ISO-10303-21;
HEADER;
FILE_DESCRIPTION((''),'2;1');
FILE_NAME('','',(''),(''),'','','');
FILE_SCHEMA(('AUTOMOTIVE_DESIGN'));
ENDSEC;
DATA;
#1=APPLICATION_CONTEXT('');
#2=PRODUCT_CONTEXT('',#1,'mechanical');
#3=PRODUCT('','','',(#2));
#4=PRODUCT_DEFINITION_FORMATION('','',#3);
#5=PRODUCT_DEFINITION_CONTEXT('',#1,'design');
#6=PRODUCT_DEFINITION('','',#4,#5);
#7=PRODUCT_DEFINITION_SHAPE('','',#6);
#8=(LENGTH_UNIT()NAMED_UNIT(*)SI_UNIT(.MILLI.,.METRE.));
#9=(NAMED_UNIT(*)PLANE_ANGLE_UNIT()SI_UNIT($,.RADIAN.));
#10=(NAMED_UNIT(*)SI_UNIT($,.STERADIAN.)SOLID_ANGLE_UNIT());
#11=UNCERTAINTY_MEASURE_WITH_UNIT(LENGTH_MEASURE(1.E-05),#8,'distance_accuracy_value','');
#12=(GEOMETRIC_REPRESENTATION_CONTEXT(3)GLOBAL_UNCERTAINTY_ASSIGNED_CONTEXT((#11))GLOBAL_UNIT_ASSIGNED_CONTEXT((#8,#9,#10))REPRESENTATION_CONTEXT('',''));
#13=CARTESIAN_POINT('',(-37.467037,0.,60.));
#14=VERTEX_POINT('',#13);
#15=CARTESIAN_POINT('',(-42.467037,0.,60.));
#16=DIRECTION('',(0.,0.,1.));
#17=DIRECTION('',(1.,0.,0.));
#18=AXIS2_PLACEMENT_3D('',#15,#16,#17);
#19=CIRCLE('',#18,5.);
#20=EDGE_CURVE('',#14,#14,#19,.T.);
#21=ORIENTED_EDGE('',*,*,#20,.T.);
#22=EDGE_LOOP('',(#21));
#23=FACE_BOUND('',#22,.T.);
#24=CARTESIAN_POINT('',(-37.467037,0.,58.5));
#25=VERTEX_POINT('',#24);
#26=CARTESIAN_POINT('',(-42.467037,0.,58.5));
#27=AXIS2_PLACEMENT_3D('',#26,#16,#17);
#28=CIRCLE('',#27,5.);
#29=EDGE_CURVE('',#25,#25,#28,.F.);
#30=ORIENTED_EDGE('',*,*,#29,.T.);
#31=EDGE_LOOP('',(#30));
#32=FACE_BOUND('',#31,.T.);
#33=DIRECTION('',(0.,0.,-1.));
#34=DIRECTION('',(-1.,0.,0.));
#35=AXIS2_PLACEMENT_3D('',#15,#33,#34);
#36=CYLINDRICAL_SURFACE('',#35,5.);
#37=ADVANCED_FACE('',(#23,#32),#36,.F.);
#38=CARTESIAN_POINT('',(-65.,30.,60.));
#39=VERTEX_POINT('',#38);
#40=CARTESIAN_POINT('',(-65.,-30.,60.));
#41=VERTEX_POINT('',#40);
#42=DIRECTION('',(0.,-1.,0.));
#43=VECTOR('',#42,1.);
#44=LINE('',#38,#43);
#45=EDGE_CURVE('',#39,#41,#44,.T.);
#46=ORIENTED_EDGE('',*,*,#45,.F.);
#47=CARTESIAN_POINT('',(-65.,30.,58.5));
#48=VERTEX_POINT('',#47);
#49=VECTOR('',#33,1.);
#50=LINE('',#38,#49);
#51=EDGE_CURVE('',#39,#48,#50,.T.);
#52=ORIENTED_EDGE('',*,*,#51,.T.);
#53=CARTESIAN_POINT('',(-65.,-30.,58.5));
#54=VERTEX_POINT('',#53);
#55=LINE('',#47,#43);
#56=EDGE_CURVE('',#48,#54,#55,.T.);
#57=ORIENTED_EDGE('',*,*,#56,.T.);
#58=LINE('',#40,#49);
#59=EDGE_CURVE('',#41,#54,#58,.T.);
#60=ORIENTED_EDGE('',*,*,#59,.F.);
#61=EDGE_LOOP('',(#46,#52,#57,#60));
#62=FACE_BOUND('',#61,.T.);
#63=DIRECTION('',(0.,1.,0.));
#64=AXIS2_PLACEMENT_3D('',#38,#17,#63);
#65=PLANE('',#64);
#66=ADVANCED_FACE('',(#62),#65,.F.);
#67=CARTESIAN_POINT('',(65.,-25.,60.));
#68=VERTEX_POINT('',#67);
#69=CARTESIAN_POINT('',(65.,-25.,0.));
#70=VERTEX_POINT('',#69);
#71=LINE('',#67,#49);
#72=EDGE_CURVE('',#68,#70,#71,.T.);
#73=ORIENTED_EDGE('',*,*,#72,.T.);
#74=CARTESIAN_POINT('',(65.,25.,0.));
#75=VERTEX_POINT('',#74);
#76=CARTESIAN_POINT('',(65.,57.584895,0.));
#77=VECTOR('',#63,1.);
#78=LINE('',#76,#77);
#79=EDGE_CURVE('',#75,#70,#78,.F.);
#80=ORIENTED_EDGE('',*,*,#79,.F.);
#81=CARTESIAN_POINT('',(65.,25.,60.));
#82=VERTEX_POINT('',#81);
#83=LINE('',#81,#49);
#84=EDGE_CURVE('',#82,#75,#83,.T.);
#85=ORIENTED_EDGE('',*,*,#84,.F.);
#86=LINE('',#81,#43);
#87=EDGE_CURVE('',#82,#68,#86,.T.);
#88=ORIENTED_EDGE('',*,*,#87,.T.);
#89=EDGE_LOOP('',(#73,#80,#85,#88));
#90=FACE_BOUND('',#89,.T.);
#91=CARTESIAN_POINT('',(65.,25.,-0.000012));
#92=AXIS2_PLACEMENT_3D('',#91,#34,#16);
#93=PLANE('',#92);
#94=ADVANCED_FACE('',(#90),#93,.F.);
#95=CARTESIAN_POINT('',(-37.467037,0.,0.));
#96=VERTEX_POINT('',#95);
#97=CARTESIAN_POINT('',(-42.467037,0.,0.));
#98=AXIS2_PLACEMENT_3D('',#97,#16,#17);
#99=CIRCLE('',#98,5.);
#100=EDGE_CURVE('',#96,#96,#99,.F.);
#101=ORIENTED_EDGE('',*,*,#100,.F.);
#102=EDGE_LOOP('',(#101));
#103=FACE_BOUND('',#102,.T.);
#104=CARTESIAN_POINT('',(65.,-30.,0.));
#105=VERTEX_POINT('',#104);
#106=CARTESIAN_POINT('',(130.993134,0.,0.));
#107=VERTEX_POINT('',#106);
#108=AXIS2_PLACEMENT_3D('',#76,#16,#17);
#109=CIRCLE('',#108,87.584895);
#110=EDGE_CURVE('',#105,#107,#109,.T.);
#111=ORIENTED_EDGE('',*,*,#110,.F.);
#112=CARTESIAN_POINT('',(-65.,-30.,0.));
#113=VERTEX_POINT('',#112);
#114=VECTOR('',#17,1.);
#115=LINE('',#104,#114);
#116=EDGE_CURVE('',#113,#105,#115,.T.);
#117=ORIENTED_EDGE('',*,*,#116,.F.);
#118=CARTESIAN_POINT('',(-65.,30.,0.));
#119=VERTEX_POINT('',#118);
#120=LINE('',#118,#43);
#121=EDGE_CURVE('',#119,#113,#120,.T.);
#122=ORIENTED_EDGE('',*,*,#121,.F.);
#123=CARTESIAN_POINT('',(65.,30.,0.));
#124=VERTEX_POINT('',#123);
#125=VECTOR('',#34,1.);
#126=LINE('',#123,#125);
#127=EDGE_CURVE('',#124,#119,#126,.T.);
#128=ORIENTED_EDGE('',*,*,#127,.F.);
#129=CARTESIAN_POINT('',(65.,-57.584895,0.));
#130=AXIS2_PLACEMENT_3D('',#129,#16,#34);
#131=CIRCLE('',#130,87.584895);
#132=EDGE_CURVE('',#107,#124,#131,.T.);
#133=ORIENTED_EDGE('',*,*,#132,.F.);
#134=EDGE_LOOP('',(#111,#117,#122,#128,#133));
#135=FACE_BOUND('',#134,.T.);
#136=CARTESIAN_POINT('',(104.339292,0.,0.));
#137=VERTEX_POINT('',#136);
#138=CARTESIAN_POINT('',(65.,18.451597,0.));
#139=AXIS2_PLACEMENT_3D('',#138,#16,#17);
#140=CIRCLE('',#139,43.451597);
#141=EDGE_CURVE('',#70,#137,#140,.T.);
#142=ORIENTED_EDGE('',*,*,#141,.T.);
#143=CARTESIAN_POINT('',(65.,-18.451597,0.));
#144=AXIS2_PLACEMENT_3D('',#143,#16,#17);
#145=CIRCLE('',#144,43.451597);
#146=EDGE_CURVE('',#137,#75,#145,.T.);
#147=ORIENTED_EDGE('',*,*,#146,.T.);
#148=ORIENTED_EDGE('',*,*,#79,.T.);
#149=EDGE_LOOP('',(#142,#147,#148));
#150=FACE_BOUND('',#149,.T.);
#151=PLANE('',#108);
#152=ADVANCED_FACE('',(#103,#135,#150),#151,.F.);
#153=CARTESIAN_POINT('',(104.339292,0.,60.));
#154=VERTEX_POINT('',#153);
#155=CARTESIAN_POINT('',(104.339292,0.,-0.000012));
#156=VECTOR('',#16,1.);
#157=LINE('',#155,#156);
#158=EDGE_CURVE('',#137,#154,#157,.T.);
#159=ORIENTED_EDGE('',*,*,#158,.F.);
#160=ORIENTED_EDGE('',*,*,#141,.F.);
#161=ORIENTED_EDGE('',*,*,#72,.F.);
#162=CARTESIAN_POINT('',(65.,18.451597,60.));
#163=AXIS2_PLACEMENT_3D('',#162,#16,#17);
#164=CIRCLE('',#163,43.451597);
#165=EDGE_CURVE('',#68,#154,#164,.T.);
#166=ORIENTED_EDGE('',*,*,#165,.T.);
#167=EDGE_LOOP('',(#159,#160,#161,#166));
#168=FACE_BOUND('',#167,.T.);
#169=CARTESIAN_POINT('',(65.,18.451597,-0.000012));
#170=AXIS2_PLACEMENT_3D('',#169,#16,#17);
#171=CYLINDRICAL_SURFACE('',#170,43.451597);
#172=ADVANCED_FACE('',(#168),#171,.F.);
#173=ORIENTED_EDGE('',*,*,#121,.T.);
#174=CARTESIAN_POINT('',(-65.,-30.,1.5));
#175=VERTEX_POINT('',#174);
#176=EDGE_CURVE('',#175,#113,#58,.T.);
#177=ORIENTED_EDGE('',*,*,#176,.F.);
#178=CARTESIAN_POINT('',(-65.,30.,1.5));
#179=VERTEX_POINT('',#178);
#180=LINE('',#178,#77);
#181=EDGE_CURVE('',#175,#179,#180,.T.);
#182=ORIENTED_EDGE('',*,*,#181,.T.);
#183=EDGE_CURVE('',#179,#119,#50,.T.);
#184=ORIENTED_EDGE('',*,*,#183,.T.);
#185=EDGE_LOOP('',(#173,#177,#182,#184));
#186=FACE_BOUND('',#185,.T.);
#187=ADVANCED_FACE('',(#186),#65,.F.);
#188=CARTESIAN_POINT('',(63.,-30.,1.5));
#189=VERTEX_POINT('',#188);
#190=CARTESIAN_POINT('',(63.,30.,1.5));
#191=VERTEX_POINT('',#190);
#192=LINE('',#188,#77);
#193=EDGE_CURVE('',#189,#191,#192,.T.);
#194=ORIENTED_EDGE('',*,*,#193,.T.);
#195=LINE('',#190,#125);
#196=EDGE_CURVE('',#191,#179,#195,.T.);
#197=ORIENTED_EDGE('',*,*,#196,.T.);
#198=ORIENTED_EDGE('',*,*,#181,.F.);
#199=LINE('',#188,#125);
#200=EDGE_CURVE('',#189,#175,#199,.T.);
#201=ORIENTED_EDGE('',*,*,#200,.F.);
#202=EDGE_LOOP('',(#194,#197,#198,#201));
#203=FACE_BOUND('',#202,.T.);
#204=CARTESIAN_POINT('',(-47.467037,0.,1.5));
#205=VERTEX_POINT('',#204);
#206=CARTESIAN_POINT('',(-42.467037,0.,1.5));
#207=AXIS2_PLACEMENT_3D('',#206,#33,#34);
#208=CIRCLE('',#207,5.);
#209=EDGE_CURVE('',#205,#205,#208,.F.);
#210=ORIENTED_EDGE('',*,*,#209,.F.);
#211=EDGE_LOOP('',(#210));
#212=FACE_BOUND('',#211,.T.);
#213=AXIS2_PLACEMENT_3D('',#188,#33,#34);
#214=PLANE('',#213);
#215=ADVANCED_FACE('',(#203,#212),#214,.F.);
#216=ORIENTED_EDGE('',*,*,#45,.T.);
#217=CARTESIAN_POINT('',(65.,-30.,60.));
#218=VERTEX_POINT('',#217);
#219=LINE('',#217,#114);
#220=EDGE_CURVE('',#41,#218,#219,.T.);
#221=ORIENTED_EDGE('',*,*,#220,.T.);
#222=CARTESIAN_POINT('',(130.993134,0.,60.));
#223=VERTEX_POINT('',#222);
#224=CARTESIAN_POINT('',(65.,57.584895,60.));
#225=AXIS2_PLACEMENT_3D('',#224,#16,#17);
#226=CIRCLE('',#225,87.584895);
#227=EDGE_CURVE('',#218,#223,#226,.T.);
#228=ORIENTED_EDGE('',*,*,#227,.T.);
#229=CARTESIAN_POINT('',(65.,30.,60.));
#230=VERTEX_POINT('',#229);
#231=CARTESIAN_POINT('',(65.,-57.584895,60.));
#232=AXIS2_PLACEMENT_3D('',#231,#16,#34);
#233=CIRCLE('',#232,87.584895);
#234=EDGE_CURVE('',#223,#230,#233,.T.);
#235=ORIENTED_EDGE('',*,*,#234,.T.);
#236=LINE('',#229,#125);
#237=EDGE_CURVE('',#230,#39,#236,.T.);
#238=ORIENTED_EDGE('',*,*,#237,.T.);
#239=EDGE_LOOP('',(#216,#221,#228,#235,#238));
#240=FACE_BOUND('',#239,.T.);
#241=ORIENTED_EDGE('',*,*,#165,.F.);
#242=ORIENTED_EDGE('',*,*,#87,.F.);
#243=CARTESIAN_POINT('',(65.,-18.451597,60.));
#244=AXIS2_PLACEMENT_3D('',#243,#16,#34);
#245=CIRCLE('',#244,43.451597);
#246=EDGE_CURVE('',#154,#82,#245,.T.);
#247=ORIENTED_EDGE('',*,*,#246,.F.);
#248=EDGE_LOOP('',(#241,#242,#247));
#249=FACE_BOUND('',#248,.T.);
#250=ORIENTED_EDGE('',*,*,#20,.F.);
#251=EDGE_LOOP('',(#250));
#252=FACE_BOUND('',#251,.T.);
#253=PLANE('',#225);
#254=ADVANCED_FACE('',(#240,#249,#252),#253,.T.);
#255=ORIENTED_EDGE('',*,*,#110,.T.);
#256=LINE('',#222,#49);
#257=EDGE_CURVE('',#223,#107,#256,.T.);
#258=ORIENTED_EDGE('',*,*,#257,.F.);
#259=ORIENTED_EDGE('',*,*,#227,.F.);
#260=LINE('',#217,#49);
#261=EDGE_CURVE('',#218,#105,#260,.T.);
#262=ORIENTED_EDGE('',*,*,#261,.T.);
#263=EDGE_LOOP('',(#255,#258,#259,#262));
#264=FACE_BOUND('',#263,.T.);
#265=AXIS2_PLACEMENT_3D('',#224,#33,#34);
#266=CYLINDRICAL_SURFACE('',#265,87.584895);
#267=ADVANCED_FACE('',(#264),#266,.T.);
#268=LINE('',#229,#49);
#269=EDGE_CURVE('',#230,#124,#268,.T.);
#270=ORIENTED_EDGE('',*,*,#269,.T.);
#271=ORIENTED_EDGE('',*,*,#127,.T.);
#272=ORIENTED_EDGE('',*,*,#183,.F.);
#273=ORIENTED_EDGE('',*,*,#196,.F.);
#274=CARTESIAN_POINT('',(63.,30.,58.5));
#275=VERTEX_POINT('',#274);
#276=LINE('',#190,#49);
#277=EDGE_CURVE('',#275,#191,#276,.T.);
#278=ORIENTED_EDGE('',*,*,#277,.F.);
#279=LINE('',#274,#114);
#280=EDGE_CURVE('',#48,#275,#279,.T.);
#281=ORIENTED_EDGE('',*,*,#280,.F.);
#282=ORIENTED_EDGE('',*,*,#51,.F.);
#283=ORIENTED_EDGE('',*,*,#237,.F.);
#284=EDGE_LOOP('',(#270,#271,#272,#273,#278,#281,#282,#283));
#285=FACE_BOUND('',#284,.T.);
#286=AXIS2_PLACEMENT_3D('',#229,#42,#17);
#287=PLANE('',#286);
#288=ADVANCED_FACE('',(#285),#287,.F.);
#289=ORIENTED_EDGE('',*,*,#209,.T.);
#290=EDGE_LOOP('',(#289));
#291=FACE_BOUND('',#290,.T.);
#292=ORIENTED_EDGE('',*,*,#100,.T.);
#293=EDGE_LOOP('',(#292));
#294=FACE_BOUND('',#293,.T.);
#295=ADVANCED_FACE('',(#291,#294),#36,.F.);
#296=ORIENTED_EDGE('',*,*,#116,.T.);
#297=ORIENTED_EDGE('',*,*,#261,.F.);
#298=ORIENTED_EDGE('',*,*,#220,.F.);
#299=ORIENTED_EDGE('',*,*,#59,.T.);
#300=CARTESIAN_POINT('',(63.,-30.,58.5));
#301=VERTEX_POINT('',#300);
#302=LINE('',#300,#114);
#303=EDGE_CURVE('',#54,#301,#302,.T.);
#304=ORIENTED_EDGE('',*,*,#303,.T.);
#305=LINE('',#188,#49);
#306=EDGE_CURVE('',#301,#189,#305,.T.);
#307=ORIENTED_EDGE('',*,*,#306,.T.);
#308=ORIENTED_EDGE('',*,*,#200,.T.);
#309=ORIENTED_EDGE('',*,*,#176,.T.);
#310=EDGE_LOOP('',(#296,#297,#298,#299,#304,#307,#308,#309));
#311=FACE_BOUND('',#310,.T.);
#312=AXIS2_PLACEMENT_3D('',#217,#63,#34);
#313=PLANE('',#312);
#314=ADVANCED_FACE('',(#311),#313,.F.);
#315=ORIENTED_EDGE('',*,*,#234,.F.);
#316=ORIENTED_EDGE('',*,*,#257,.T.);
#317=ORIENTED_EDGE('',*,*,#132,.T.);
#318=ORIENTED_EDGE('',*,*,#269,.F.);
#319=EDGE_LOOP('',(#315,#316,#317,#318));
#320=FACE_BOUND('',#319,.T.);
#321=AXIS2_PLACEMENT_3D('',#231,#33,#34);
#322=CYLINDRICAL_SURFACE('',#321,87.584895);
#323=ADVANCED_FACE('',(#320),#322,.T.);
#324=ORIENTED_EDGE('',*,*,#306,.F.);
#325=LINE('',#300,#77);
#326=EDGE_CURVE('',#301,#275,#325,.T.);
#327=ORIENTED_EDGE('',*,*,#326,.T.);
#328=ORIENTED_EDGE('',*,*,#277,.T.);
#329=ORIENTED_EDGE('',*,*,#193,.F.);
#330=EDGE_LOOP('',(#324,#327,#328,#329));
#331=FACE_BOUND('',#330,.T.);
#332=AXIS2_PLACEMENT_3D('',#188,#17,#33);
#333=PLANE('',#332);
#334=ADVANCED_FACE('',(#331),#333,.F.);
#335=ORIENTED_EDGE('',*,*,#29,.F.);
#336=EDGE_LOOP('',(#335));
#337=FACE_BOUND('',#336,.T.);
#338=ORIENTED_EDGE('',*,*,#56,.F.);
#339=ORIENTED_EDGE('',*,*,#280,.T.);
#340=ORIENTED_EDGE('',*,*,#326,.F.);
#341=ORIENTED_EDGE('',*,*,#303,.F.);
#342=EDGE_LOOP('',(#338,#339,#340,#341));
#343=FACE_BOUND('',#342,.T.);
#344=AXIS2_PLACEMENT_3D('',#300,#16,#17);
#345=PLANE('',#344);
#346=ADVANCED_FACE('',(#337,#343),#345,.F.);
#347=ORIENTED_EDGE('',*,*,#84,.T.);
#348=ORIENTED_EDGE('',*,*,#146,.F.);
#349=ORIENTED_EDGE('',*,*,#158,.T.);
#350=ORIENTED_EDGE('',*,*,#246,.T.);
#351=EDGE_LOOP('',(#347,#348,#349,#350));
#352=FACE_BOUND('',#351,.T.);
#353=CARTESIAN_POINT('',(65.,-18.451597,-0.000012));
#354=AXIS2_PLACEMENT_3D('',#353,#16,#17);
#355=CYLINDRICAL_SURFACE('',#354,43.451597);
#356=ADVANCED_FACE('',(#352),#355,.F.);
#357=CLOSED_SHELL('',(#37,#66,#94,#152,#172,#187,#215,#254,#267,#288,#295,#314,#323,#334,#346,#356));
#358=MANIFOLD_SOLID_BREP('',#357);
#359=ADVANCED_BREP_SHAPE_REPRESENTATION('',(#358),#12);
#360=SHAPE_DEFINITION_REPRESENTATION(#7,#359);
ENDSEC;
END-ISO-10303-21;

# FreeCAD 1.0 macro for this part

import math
import FreeCAD as App
import Part
import Sketcher


def add_polygon(sketch, points):
    """Adds a closed chain of lines whose ends are joined by coincident constraints."""
    first, n = sketch.GeometryCount, len(points)
    for a, b in zip(points, points[1:] + points[:1]):
        sketch.addGeometry(Part.LineSegment(App.Vector(*a, 0), App.Vector(*b, 0)), False)
    for i in range(n):
        sketch.addConstraint(Sketcher.Constraint("Coincident", first + i, 2, first + (i + 1) % n, 1))

doc = App.newDocument("Part")
body = doc.addObject("PartDesign::Body", "Body")

sketch1 = doc.addObject("Sketcher::SketchObject", "Sketch")
body.addObject(sketch1)
sketch1.AttachmentSupport = (doc.XY_Plane, [""])
sketch1.MapMode = "FlatFace"
sketch1.addGeometry([
    Part.LineSegment(App.Vector(65, 30, 0), App.Vector(-65, 30, 0)),
    Part.LineSegment(App.Vector(-65, 30, 0), App.Vector(-65, -30, 0)),
    Part.LineSegment(App.Vector(-65, -30, 0), App.Vector(65, -30, 0)),
    Part.ArcOfCircle(Part.Circle(App.Vector(65, 58, 0), App.Vector(0, 0, 1), 88), math.radians(-90), math.radians(-41)),
    Part.ArcOfCircle(Part.Circle(App.Vector(65, -58, 0), App.Vector(0, 0, 1), 88), math.radians(41), math.radians(90)),
], False)
sketch1.addConstraint([
    Sketcher.Constraint("Coincident", 0, 2, 1, 1),
    Sketcher.Constraint("Coincident", 1, 2, 2, 1),
    Sketcher.Constraint("Tangent", 2, 2, 3, 1),
    Sketcher.Constraint("Coincident", 3, 2, 4, 1),
    Sketcher.Constraint("Tangent", 4, 2, 0, 1),
    Sketcher.Constraint("Horizontal", 0),
    Sketcher.Constraint("Vertical", 1),
    Sketcher.Constraint("Horizontal", 2),
    Sketcher.Constraint("Equal", 3, 4),
    Sketcher.Constraint("Symmetric", 0, 2, 2, 2, -1, 1),
    Sketcher.Constraint("PointOnObject", 3, 2, -1),
    Sketcher.Constraint("DistanceX", 0, 2, 0, 1, 130.0),
    Sketcher.Constraint("DistanceY", 1, 2, 1, 1, 60.0),
    Sketcher.Constraint("Radius", 3, 87.584895),
])
pad1 = doc.addObject("PartDesign::Pad", "Pad")
body.addObject(pad1)
pad1.Profile = sketch1
pad1.Length = 60

sketch2 = doc.addObject("Sketcher::SketchObject", "Sketch001")
body.addObject(sketch2)
sketch2.AttachmentSupport = (doc.XY_Plane, [""])
sketch2.MapMode = "FlatFace"
sketch2.addGeometry([
    Part.LineSegment(App.Vector(65, 25, 0), App.Vector(65, -25, 0)),
    Part.ArcOfCircle(Part.Circle(App.Vector(65, 18, 0), App.Vector(0, 0, 1), 43), math.radians(-90), math.radians(-25)),
    Part.ArcOfCircle(Part.Circle(App.Vector(65, -18, 0), App.Vector(0, 0, 1), 43), math.radians(25), math.radians(90)),
], False)
sketch2.addConstraint([
    Sketcher.Constraint("Coincident", 0, 2, 1, 1),
    Sketcher.Constraint("Coincident", 1, 2, 2, 1),
    Sketcher.Constraint("Coincident", 2, 2, 0, 1),
    Sketcher.Constraint("Vertical", 0),
    Sketcher.Constraint("Equal", 1, 2),
    Sketcher.Constraint("Symmetric", 1, 3, 2, 3, -1),
    Sketcher.Constraint("Vertical", 2, 3, 0, 2),
    Sketcher.Constraint("DistanceY", 0, 2, 0, 1, 50.0),
    Sketcher.Constraint("DistanceX", -1, 1, 1, 3, 65.0),
    Sketcher.Constraint("Radius", 1, 43.451597),
])
pocket1 = doc.addObject("PartDesign::Pocket", "Pocket")
body.addObject(pocket1)
pocket1.Profile = sketch2
pocket1.Type = "ThroughAll"
pocket1.Midplane = True

sketch3 = doc.addObject("Sketcher::SketchObject", "Sketch002")
body.addObject(sketch3)
sketch3.AttachmentSupport = (doc.XZ_Plane, [""])
sketch3.MapMode = "FlatFace"
add_polygon(sketch3, [(-63, 2), (-63, 58), (63, 58), (63, 2)])
sketch3.addConstraint([
    Sketcher.Constraint("Vertical", 0),
    Sketcher.Constraint("Horizontal", 1),
    Sketcher.Constraint("Vertical", 2),
    Sketcher.Constraint("Horizontal", 3),
    Sketcher.Constraint("DistanceX", 1, 1, 1, 2, 126.0),
    Sketcher.Constraint("DistanceY", 0, 1, 0, 2, 57.0),
    Sketcher.Constraint("DistanceX", 0, 2, -1, 1, 63.0),
    Sketcher.Constraint("DistanceY", -1, 1, 0, 2, 58.5),
])
pocket2 = doc.addObject("PartDesign::Pocket", "Pocket001")
body.addObject(pocket2)
pocket2.Profile = sketch3
pocket2.Type = "ThroughAll"
pocket2.Midplane = True

sketch4 = doc.addObject("Sketcher::SketchObject", "Sketch003")
body.addObject(sketch4)
sketch4.AttachmentSupport = (doc.YZ_Plane, [""])
sketch4.MapMode = "FlatFace"
sketch4.AttachmentOffset = App.Placement(App.Vector(0, 0, -63), App.Rotation())
add_polygon(sketch4, [(30, 58), (-30, 58), (-30, 2), (30, 2)])
sketch4.addConstraint([
    Sketcher.Constraint("Horizontal", 0),
    Sketcher.Constraint("Vertical", 1),
    Sketcher.Constraint("Horizontal", 2),
    Sketcher.Constraint("Vertical", 3),
    Sketcher.Constraint("DistanceX", 0, 2, 0, 1, 60.0),
    Sketcher.Constraint("DistanceY", 1, 2, 1, 1, 57.0),
    Sketcher.Constraint("DistanceX", 0, 2, -1, 1, 30.0),
    Sketcher.Constraint("DistanceY", -1, 1, 0, 2, 58.5),
])
pocket3 = doc.addObject("PartDesign::Pocket", "Pocket002")
body.addObject(pocket3)
pocket3.Profile = sketch4
pocket3.Length = 57

sketch5 = doc.addObject("Sketcher::SketchObject", "Sketch004")
body.addObject(sketch5)
sketch5.AttachmentSupport = (doc.XY_Plane, [""])
sketch5.MapMode = "FlatFace"
sketch5.addGeometry(Part.Circle(App.Vector(-42, 0, 0), App.Vector(0, 0, 1), 5), False)
sketch5.addConstraint([
    Sketcher.Constraint("PointOnObject", 0, 3, -1),
    Sketcher.Constraint("Diameter", 0, 10.0),
    Sketcher.Constraint("DistanceX", 0, 3, -1, 1, 42.467037),
])
pocket4 = doc.addObject("PartDesign::Pocket", "Pocket003")
body.addObject(pocket4)
pocket4.Profile = sketch5
pocket4.Type = "ThroughAll"
pocket4.Midplane = True

doc.recompute()
